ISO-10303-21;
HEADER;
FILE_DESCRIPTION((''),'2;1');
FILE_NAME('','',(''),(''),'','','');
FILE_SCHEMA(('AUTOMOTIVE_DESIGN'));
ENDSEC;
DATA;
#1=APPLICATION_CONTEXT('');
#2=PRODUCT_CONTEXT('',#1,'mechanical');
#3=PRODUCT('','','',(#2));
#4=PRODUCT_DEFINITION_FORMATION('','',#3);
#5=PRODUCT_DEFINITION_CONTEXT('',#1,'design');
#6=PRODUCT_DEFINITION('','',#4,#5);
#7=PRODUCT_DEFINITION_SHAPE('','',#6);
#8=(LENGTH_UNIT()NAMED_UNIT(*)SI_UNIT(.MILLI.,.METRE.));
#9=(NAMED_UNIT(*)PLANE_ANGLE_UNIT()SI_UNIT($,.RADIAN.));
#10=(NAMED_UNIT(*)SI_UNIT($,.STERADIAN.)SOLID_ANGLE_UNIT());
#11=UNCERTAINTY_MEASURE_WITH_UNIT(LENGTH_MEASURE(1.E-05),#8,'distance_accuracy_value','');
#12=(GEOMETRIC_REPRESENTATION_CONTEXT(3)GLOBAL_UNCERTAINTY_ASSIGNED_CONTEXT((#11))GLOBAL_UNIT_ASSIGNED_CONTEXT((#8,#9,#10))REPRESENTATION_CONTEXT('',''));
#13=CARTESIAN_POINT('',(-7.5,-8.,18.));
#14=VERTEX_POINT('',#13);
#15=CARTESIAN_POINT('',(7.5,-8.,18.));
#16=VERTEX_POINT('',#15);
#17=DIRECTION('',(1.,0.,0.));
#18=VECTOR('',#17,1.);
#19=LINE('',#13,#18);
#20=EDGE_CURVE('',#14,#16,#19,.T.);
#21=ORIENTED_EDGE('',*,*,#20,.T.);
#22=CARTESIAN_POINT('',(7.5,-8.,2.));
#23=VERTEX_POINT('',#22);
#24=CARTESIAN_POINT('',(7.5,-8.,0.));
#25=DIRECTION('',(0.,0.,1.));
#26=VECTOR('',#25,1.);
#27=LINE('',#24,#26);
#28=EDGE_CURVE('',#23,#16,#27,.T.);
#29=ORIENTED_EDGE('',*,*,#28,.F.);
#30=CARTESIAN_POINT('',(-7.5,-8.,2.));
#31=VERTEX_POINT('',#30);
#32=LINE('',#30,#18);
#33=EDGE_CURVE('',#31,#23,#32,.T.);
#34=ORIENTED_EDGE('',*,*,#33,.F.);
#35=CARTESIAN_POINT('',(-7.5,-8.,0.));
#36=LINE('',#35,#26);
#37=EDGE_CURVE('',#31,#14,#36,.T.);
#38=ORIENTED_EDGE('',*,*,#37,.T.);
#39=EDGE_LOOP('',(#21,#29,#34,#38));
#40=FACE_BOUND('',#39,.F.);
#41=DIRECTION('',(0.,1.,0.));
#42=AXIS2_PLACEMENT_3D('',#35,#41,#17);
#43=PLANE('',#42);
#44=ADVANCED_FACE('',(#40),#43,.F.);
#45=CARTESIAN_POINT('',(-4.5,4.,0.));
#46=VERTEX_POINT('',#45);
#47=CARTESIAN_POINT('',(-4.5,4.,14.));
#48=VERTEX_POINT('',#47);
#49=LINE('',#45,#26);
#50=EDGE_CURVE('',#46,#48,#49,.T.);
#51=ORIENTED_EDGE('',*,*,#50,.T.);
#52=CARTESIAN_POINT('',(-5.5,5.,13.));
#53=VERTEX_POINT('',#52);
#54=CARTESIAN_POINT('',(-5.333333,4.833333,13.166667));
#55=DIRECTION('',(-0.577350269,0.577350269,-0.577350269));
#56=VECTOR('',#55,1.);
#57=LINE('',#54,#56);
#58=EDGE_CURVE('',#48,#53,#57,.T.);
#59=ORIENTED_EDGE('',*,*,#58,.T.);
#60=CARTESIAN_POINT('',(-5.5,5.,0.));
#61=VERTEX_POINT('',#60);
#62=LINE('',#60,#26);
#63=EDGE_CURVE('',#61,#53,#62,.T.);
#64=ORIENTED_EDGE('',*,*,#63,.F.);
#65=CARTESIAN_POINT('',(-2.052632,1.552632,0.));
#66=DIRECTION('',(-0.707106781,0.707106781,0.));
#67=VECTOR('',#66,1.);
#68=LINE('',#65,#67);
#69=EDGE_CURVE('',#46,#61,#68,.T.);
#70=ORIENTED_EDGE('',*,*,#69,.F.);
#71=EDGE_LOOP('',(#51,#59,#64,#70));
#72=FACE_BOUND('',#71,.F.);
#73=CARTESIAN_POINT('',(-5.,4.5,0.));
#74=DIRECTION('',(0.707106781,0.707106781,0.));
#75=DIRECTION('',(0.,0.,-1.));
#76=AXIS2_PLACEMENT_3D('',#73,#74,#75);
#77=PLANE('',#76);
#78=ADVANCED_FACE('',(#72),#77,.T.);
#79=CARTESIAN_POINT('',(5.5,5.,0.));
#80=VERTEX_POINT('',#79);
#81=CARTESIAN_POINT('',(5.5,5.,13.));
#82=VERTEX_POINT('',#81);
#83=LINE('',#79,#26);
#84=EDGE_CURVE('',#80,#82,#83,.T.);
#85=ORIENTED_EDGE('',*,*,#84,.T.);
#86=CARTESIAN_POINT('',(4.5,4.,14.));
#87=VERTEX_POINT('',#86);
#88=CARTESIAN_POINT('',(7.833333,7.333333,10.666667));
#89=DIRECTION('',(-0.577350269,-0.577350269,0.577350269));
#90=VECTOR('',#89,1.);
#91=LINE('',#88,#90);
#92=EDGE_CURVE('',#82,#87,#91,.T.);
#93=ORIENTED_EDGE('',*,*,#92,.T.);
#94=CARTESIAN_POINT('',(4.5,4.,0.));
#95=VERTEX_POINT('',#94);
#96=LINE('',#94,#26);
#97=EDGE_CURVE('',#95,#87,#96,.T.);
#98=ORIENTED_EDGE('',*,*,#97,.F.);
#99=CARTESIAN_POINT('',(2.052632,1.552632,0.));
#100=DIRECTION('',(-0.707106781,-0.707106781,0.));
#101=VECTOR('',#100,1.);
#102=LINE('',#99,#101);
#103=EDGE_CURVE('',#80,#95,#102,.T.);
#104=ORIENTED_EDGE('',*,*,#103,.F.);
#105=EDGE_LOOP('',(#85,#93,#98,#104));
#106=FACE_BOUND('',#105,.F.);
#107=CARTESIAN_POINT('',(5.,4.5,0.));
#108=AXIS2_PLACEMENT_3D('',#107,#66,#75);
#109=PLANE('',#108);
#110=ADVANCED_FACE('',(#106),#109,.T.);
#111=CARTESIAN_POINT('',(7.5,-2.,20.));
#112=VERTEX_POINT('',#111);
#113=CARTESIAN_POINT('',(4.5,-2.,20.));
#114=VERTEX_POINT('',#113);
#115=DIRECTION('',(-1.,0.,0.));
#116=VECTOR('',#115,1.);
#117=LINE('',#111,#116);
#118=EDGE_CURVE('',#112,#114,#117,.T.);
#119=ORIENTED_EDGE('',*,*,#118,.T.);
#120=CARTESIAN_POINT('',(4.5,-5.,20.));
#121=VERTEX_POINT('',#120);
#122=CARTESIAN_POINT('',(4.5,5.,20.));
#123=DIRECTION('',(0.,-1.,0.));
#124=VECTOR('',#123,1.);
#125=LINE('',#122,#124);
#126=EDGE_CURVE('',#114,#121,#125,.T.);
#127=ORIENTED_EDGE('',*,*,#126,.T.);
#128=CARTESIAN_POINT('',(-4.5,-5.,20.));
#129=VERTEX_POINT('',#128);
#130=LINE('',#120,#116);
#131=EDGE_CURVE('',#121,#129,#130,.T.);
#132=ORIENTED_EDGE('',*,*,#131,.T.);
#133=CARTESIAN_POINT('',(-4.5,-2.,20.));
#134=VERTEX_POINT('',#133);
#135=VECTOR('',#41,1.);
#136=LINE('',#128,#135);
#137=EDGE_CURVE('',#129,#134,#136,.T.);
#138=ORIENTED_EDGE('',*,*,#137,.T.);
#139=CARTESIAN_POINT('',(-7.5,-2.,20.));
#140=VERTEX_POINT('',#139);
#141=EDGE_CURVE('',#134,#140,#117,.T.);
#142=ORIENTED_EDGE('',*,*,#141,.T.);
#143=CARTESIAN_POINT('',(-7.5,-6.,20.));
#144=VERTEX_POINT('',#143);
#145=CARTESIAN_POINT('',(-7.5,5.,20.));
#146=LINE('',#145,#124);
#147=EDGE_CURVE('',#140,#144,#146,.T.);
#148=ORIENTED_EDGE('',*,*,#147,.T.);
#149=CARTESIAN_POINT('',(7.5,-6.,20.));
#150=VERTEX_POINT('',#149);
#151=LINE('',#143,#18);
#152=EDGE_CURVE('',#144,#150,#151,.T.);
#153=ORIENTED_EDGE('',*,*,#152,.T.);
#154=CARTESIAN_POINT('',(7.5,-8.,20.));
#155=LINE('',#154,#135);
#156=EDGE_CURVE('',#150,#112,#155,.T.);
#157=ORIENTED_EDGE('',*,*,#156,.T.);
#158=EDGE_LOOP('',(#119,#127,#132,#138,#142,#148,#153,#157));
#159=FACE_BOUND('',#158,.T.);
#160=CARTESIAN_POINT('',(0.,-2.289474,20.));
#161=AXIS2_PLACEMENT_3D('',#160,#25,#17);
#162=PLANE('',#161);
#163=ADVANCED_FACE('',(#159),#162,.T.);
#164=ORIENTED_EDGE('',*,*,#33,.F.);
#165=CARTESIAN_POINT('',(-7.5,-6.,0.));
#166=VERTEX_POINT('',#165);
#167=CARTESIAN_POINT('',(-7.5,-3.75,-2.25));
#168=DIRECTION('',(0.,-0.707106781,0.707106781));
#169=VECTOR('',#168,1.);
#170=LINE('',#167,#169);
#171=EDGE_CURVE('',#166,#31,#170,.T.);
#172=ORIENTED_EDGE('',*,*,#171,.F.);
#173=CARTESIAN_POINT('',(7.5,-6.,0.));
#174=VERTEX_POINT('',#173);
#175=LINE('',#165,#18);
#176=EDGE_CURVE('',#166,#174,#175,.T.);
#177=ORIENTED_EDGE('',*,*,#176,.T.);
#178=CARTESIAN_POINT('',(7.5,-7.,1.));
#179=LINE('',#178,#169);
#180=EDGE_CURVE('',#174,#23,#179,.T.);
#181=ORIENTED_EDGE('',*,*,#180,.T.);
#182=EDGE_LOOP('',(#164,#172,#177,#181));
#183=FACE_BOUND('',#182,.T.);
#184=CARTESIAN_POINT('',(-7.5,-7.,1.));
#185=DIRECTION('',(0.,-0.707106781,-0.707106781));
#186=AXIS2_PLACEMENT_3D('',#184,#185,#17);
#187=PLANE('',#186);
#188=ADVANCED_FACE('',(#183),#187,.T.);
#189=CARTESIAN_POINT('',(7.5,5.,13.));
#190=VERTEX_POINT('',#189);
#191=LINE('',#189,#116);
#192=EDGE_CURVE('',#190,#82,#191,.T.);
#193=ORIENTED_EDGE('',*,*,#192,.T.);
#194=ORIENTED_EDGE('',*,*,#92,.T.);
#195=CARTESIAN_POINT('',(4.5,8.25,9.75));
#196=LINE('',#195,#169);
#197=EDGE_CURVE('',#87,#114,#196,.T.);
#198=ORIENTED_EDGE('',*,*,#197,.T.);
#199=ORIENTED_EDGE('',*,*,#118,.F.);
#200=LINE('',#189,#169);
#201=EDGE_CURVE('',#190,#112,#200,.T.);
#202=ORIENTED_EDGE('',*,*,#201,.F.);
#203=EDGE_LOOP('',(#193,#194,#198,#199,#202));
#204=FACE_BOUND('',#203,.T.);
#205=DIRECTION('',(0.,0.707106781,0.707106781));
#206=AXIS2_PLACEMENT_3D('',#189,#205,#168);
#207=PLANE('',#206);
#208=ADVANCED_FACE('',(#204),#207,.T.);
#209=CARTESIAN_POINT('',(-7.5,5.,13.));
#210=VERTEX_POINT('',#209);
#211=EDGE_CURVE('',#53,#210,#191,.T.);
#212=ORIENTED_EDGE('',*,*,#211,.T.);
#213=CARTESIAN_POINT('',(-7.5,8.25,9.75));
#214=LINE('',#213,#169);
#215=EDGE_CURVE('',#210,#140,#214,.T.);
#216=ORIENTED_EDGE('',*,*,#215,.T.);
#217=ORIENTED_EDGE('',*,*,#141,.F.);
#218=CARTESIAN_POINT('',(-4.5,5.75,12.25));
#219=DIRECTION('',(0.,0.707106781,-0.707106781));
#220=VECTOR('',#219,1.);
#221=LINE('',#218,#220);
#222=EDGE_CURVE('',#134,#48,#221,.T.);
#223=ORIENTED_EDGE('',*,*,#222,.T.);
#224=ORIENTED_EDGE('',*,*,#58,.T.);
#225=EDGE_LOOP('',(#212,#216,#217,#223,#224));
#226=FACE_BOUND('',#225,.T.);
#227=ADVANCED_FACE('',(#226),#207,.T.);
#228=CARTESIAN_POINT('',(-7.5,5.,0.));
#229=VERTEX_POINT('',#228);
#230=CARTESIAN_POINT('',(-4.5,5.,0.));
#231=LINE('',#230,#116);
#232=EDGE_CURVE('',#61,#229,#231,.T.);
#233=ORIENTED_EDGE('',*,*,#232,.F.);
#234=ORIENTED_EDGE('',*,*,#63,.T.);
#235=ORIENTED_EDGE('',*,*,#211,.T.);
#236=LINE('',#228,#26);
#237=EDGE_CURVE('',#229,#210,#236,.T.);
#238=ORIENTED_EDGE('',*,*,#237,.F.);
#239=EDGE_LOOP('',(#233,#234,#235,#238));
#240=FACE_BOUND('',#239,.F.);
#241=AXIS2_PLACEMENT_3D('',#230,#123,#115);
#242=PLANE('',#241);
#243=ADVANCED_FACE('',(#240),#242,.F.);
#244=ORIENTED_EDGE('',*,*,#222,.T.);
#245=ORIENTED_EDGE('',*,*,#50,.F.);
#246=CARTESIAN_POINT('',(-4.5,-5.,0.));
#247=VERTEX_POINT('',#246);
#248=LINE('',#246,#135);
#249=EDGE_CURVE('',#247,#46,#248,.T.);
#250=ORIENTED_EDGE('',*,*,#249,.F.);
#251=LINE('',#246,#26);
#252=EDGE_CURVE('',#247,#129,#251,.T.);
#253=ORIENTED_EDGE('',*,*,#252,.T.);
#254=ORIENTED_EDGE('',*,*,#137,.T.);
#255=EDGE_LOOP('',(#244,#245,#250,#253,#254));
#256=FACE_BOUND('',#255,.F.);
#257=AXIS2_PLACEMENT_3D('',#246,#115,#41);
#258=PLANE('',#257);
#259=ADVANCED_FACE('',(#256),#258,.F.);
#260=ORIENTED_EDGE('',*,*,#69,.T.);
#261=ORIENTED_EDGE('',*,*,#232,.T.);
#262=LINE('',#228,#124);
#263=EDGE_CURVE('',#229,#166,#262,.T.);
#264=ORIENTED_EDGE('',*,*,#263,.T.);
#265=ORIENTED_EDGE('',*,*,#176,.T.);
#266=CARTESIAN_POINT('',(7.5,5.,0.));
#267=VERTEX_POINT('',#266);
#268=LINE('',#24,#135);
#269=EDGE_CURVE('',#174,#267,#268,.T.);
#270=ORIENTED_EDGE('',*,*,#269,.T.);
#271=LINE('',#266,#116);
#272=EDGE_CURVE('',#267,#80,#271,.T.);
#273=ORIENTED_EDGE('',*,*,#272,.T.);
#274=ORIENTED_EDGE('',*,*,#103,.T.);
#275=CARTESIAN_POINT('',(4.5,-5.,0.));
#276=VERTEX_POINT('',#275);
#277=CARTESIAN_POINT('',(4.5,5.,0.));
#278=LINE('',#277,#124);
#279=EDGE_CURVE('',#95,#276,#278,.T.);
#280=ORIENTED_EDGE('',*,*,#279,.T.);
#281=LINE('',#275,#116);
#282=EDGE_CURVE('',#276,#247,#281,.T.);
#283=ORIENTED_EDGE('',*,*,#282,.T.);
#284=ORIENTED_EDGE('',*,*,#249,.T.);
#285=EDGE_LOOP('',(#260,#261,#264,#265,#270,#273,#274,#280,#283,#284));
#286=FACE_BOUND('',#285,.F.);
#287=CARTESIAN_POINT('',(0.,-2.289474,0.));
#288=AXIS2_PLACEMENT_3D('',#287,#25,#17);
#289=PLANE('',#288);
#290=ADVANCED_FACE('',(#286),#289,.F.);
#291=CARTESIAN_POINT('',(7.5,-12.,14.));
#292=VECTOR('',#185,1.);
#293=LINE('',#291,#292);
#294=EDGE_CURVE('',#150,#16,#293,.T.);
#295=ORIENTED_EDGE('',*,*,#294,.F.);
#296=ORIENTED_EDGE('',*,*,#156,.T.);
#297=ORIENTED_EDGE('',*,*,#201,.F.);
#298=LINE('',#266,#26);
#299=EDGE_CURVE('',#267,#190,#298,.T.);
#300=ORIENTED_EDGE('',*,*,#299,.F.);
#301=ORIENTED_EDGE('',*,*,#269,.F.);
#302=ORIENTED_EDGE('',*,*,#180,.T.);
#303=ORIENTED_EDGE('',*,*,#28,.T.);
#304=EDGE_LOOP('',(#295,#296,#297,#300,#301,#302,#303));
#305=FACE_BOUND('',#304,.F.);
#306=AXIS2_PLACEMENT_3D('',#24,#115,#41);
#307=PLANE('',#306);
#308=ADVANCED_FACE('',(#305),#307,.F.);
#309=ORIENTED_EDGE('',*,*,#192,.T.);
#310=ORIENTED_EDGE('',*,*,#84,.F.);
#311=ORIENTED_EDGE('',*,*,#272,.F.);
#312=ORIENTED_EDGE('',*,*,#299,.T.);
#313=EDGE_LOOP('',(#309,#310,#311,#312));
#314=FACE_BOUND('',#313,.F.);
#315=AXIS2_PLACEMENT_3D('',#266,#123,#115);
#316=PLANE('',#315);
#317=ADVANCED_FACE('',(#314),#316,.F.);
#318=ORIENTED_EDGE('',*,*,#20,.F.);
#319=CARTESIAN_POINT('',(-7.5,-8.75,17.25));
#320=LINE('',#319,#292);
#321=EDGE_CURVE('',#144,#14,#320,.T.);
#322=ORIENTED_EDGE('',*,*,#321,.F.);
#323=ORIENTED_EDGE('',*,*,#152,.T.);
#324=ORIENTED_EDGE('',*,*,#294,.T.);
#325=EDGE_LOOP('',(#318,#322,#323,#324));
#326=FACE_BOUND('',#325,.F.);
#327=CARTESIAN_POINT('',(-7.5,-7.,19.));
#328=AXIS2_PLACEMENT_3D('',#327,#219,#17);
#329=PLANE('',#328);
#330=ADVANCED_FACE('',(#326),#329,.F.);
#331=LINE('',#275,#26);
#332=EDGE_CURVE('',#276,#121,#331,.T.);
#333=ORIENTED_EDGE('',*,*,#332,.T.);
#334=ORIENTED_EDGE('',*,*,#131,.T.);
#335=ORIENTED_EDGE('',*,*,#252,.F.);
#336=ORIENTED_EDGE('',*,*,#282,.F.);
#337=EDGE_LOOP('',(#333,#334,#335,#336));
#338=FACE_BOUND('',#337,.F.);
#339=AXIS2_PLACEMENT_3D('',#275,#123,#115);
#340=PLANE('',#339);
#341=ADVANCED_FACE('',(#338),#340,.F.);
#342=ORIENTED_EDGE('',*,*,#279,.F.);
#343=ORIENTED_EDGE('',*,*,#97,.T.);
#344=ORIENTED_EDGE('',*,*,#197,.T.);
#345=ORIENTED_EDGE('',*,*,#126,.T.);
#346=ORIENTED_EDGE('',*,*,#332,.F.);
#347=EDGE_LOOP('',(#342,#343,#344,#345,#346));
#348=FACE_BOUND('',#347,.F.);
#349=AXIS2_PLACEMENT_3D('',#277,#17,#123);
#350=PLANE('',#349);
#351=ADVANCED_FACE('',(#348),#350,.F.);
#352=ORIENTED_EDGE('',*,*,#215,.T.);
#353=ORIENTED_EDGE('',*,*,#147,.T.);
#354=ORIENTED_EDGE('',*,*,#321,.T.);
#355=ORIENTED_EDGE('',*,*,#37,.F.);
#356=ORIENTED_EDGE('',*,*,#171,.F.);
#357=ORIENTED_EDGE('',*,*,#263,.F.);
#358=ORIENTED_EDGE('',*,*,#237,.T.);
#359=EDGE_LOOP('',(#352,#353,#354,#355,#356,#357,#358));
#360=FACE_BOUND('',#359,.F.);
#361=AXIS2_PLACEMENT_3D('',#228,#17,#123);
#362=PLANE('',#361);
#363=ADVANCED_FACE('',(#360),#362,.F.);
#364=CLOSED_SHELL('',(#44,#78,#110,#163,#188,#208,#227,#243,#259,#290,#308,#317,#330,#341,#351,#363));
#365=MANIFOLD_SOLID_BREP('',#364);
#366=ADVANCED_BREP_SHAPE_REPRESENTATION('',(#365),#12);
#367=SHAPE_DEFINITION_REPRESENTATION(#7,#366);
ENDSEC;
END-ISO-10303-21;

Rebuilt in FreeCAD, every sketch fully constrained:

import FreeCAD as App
import Part
import Sketcher


def edges_at(feature, points):
    """Names of the edges that pass closest to the given points."""
    edges = feature.Shape.Edges
    near = lambda p: min(range(len(edges)), key=lambda i: edges[i].distToShape(Part.Vertex(*p))[0])
    return sorted({f"Edge{near(p) + 1}" for p in points})

doc = App.newDocument("Part")
body = doc.addObject("PartDesign::Body", "Body")

# Sketch on XY plane
sketch1 = body.newObject("Sketcher::SketchObject", "Sketch")
sketch1.AttachmentSupport = (doc.getObject("XY_Plane"), [""])
sketch1.MapMode = "FlatFace"
sketch1.addGeometry(Part.LineSegment(App.Vector(-7.5, 5, 0), App.Vector(-7.5, -8, 0)), False)
sketch1.addGeometry(Part.LineSegment(App.Vector(-7.5, -8, 0), App.Vector(7.5, -8, 0)), False)
sketch1.addGeometry(Part.LineSegment(App.Vector(7.5, -8, 0), App.Vector(7.5, 5, 0)), False)
sketch1.addGeometry(Part.LineSegment(App.Vector(7.5, 5, 0), App.Vector(4.5, 5, 0)), False)
sketch1.addGeometry(Part.LineSegment(App.Vector(4.5, 5, 0), App.Vector(4.5, -5, 0)), False)
sketch1.addGeometry(Part.LineSegment(App.Vector(4.5, -5, 0), App.Vector(-4.5, -5, 0)), False)
sketch1.addGeometry(Part.LineSegment(App.Vector(-4.5, -5, 0), App.Vector(-4.5, 5, 0)), False)
sketch1.addGeometry(Part.LineSegment(App.Vector(-4.5, 5, 0), App.Vector(-7.5, 5, 0)), False)
sketch1.addConstraint(Sketcher.Constraint("Coincident", 0, 2, 1, 1))
sketch1.addConstraint(Sketcher.Constraint("Coincident", 1, 2, 2, 1))
sketch1.addConstraint(Sketcher.Constraint("Coincident", 2, 2, 3, 1))
sketch1.addConstraint(Sketcher.Constraint("Coincident", 3, 2, 4, 1))
sketch1.addConstraint(Sketcher.Constraint("Coincident", 4, 2, 5, 1))
sketch1.addConstraint(Sketcher.Constraint("Coincident", 5, 2, 6, 1))
sketch1.addConstraint(Sketcher.Constraint("Coincident", 6, 2, 7, 1))
sketch1.addConstraint(Sketcher.Constraint("Coincident", 7, 2, 0, 1))
sketch1.addConstraint(Sketcher.Constraint("Vertical", 0))
sketch1.addConstraint(Sketcher.Constraint("Horizontal", 1))
sketch1.addConstraint(Sketcher.Constraint("Vertical", 2))
sketch1.addConstraint(Sketcher.Constraint("Horizontal", 3))
sketch1.addConstraint(Sketcher.Constraint("Vertical", 4))
sketch1.addConstraint(Sketcher.Constraint("Horizontal", 5))
sketch1.addConstraint(Sketcher.Constraint("Vertical", 6))
sketch1.addConstraint(Sketcher.Constraint("Horizontal", 7))
sketch1.addConstraint(Sketcher.Constraint("Symmetric", 3, 2, 5, 2, -1, 1))
sketch1.addConstraint(Sketcher.Constraint("Symmetric", 2, 2, 7, 2, -2))
sketch1.addConstraint(Sketcher.Constraint("DistanceX", 1, 1, 1, 2, 15.0))
sketch1.addConstraint(Sketcher.Constraint("DistanceX", 3, 2, 3, 1, 3.0))
sketch1.addConstraint(Sketcher.Constraint("DistanceY", 0, 2, 0, 1, 13.0))
sketch1.addConstraint(Sketcher.Constraint("DistanceY", 4, 2, 4, 1, 10.0))
pad1 = body.newObject("PartDesign::Pad", "Pad")
pad1.Profile = sketch1
pad1.Length = 20
doc.recompute()

chamfer = body.newObject("PartDesign::Chamfer", "Chamfer")
chamfer.Base = (pad1, edges_at(pad1, [(-4.5, 5, 10), (4.5, 5, 10)]))
chamfer.Size = 1
doc.recompute()

chamfer2 = body.newObject("PartDesign::Chamfer", "Chamfer001")
chamfer2.Base = (chamfer, edges_at(chamfer, [(0, -8, 20), (0, -8, 0)]))
chamfer2.Size = 2

# Sketch on YZ plane
sketch2 = body.newObject("Sketcher::SketchObject", "Sketch001")
sketch2.AttachmentSupport = (doc.getObject("YZ_Plane"), [""])
sketch2.MapMode = "FlatFace"
sketch2.AttachmentOffset = App.Placement(App.Vector(0, 0, 7.5), App.Rotation())
sketch2.addGeometry(Part.LineSegment(App.Vector(5, 20, 0), App.Vector(-2, 20, 0)), False)
sketch2.addGeometry(Part.LineSegment(App.Vector(-2, 20, 0), App.Vector(5, 13, 0)), False)
sketch2.addGeometry(Part.LineSegment(App.Vector(5, 13, 0), App.Vector(5, 20, 0)), False)
sketch2.addConstraint(Sketcher.Constraint("Coincident", 0, 2, 1, 1))
sketch2.addConstraint(Sketcher.Constraint("Coincident", 1, 2, 2, 1))
sketch2.addConstraint(Sketcher.Constraint("Coincident", 2, 2, 0, 1))
sketch2.addConstraint(Sketcher.Constraint("Horizontal", 0))
sketch2.addConstraint(Sketcher.Constraint("Vertical", 2))
sketch2.addConstraint(Sketcher.Constraint("Equal", 0, 2))
sketch2.addConstraint(Sketcher.Constraint("DistanceX", 0, 2, 0, 1, 7.0))
sketch2.addConstraint(Sketcher.Constraint("DistanceX", 0, 2, -1, 1, 2.0))
sketch2.addConstraint(Sketcher.Constraint("DistanceY", -1, 1, 0, 2, 20.0))
pocket1 = body.newObject("PartDesign::Pocket", "Pocket")
pocket1.Profile = sketch2
pocket1.Type = "ThroughAll"

doc.recompute()
